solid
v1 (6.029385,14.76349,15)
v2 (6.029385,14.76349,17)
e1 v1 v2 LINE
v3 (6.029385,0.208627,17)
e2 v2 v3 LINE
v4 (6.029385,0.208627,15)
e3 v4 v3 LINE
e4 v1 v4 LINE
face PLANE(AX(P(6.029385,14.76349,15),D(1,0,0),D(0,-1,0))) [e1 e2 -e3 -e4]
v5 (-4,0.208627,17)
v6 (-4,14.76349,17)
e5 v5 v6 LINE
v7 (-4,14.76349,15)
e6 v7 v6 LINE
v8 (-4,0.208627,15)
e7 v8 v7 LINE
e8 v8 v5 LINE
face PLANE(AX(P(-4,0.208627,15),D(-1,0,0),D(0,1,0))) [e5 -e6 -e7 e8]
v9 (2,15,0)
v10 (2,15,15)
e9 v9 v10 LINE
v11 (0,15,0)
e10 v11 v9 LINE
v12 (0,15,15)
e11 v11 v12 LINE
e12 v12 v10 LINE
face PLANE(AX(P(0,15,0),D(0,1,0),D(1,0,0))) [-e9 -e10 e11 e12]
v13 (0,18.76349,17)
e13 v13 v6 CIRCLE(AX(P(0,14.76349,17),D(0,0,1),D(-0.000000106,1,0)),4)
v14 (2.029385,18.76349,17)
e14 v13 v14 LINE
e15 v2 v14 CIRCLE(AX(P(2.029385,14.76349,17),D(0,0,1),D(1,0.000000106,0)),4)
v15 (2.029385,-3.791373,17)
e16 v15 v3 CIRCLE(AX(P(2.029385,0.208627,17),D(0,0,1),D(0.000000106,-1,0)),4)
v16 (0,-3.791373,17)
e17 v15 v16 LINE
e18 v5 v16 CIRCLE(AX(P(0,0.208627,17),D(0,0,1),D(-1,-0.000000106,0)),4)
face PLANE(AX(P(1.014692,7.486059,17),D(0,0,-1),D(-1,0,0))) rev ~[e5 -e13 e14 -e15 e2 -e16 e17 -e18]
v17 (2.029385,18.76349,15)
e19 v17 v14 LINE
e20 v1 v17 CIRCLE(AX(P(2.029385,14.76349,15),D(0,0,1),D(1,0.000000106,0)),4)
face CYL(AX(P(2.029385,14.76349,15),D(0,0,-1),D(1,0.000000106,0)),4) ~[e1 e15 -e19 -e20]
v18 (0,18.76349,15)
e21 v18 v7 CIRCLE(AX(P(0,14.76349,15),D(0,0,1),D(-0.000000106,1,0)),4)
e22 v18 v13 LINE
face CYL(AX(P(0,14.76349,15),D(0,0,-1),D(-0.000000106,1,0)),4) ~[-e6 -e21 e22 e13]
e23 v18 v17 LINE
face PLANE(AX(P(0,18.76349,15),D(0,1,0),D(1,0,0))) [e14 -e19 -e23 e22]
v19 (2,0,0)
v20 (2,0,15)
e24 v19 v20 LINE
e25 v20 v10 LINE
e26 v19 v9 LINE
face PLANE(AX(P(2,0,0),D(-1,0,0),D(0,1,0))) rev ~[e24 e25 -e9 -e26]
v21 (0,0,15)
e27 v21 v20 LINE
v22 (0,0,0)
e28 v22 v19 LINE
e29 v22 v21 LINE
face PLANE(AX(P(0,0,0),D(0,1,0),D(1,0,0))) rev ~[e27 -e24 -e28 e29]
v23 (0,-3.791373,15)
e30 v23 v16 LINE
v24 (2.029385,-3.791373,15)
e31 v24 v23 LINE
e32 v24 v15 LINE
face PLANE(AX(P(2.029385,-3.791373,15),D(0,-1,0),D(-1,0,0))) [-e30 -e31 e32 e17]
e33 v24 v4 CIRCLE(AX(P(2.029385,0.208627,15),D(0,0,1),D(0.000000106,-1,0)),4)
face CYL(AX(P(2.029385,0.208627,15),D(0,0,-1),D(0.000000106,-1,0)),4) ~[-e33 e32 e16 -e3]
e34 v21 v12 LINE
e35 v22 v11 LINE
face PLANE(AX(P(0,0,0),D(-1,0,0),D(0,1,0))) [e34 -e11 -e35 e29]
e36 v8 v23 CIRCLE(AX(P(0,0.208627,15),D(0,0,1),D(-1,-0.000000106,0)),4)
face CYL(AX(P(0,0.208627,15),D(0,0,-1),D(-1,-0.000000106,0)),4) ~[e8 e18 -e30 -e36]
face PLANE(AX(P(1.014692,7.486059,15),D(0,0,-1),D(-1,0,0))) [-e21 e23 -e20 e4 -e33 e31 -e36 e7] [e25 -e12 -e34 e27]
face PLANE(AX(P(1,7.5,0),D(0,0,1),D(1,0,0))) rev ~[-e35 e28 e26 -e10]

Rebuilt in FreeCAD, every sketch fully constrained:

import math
import FreeCAD as App
import Part
import Sketcher
Q = App.Units.Quantity


def add_polygon(sketch, points):
    """Adds a closed chain of lines whose ends are joined by coincident constraints."""
    first, n = sketch.GeometryCount, len(points)
    for a, b in zip(points, points[1:] + points[:1]):
        sketch.addGeometry(Part.LineSegment(App.Vector(*a, 0), App.Vector(*b, 0)), False)
    for i in range(n):
        sketch.addConstraint(Sketcher.Constraint("Coincident", first + i, 2, first + (i + 1) % n, 1))

doc = App.newDocument("Part")
body = doc.addObject("PartDesign::Body", "Body")

sketch1 = doc.addObject("Sketcher::SketchObject", "Sketch")
body.addObject(sketch1)
sketch1.AttachmentSupport = (doc.XY_Plane, [""])
sketch1.MapMode = "FlatFace"
add_polygon(sketch1, [(0, 15), (0, 0), (2, 0), (2, 15)])
sketch1.addConstraint(Sketcher.Constraint("Vertical", 0))
sketch1.addConstraint(Sketcher.Constraint("Horizontal", 1))
sketch1.addConstraint(Sketcher.Constraint("Vertical", 2))
sketch1.addConstraint(Sketcher.Constraint("Horizontal", 3))
sketch1.addConstraint(Sketcher.Constraint("Coincident", 0, 2, -1, 1))
sketch1.addConstraint(Sketcher.Constraint("DistanceX", 1, 1, 1, 2, Q("2 mm")))
sketch1.addConstraint(Sketcher.Constraint("DistanceY", 0, 2, 0, 1, Q("15 mm")))
pad1 = doc.addObject("PartDesign::Pad", "Pad")
body.addObject(pad1)
pad1.Profile = sketch1
pad1.Length = 15

sketch2 = doc.addObject("Sketcher::SketchObject", "Sketch001")
body.addObject(sketch2)
sketch2.AttachmentSupport = (doc.XY_Plane, [""])
sketch2.MapMode = "FlatFace"
sketch2.AttachmentOffset = App.Placement(App.Vector(0, 0, 15), App.Rotation())
sketch2.addGeometry(Part.LineSegment(App.Vector(2, 18.8, 0), App.Vector(0, 18.8, 0)), False)
sketch2.addGeometry(Part.ArcOfCircle(Part.Circle(App.Vector(0, 14.8, 0), App.Vector(0, 0, 1), 4), math.radians(90), math.radians(180)), False)
sketch2.addGeometry(Part.LineSegment(App.Vector(-4, 14.8, 0), App.Vector(-4, 0.2, 0)), False)
sketch2.addGeometry(Part.ArcOfCircle(Part.Circle(App.Vector(0, 0.2, 0), App.Vector(0, 0, 1), 4), math.radians(-180), math.radians(-90)), False)
sketch2.addGeometry(Part.LineSegment(App.Vector(0, -3.8, 0), App.Vector(2, -3.8, 0)), False)
sketch2.addGeometry(Part.ArcOfCircle(Part.Circle(App.Vector(2, 0.2, 0), App.Vector(0, 0, 1), 4), math.radians(-90), math.radians(0)), False)
sketch2.addGeometry(Part.LineSegment(App.Vector(6, 0.2, 0), App.Vector(6, 14.8, 0)), False)
sketch2.addGeometry(Part.ArcOfCircle(Part.Circle(App.Vector(2, 14.8, 0), App.Vector(0, 0, 1), 4), math.radians(0), math.radians(90)), False)
sketch2.addConstraint(Sketcher.Constraint("Tangent", 0, 2, 1, 1))
sketch2.addConstraint(Sketcher.Constraint("Tangent", 1, 2, 2, 1))
sketch2.addConstraint(Sketcher.Constraint("Tangent", 2, 2, 3, 1))
sketch2.addConstraint(Sketcher.Constraint("Tangent", 3, 2, 4, 1))
sketch2.addConstraint(Sketcher.Constraint("Tangent", 4, 2, 5, 1))
sketch2.addConstraint(Sketcher.Constraint("Tangent", 5, 2, 6, 1))
sketch2.addConstraint(Sketcher.Constraint("Tangent", 6, 2, 7, 1))
sketch2.addConstraint(Sketcher.Constraint("Tangent", 7, 2, 0, 1))
sketch2.addConstraint(Sketcher.Constraint("Horizontal", 0))
sketch2.addConstraint(Sketcher.Constraint("Vertical", 2))
sketch2.addConstraint(Sketcher.Constraint("Horizontal", 4))
sketch2.addConstraint(Sketcher.Constraint("Vertical", 6))
sketch2.addConstraint(Sketcher.Constraint("Equal", 1, 3))
sketch2.addConstraint(Sketcher.Constraint("Equal", 3, 5))
sketch2.addConstraint(Sketcher.Constraint("Equal", 5, 7))
sketch2.addConstraint(Sketcher.Constraint("PointOnObject", 1, 3, -2))
sketch2.addConstraint(Sketcher.Constraint("Radius", 1, Q("4 mm")))
sketch2.addConstraint(Sketcher.Constraint("DistanceX", 0, 2, 0, 1, Q("2.029385 mm")))
sketch2.addConstraint(Sketcher.Constraint("DistanceY", 2, 2, 2, 1, Q("14.554863 mm")))
sketch2.addConstraint(Sketcher.Constraint("DistanceY", -1, 1, 1, 3, Q("14.76349 mm")))
pad2 = doc.addObject("PartDesign::Pad", "Pad001")
body.addObject(pad2)
pad2.Profile = sketch2
pad2.Length = 2

doc.recompute()
